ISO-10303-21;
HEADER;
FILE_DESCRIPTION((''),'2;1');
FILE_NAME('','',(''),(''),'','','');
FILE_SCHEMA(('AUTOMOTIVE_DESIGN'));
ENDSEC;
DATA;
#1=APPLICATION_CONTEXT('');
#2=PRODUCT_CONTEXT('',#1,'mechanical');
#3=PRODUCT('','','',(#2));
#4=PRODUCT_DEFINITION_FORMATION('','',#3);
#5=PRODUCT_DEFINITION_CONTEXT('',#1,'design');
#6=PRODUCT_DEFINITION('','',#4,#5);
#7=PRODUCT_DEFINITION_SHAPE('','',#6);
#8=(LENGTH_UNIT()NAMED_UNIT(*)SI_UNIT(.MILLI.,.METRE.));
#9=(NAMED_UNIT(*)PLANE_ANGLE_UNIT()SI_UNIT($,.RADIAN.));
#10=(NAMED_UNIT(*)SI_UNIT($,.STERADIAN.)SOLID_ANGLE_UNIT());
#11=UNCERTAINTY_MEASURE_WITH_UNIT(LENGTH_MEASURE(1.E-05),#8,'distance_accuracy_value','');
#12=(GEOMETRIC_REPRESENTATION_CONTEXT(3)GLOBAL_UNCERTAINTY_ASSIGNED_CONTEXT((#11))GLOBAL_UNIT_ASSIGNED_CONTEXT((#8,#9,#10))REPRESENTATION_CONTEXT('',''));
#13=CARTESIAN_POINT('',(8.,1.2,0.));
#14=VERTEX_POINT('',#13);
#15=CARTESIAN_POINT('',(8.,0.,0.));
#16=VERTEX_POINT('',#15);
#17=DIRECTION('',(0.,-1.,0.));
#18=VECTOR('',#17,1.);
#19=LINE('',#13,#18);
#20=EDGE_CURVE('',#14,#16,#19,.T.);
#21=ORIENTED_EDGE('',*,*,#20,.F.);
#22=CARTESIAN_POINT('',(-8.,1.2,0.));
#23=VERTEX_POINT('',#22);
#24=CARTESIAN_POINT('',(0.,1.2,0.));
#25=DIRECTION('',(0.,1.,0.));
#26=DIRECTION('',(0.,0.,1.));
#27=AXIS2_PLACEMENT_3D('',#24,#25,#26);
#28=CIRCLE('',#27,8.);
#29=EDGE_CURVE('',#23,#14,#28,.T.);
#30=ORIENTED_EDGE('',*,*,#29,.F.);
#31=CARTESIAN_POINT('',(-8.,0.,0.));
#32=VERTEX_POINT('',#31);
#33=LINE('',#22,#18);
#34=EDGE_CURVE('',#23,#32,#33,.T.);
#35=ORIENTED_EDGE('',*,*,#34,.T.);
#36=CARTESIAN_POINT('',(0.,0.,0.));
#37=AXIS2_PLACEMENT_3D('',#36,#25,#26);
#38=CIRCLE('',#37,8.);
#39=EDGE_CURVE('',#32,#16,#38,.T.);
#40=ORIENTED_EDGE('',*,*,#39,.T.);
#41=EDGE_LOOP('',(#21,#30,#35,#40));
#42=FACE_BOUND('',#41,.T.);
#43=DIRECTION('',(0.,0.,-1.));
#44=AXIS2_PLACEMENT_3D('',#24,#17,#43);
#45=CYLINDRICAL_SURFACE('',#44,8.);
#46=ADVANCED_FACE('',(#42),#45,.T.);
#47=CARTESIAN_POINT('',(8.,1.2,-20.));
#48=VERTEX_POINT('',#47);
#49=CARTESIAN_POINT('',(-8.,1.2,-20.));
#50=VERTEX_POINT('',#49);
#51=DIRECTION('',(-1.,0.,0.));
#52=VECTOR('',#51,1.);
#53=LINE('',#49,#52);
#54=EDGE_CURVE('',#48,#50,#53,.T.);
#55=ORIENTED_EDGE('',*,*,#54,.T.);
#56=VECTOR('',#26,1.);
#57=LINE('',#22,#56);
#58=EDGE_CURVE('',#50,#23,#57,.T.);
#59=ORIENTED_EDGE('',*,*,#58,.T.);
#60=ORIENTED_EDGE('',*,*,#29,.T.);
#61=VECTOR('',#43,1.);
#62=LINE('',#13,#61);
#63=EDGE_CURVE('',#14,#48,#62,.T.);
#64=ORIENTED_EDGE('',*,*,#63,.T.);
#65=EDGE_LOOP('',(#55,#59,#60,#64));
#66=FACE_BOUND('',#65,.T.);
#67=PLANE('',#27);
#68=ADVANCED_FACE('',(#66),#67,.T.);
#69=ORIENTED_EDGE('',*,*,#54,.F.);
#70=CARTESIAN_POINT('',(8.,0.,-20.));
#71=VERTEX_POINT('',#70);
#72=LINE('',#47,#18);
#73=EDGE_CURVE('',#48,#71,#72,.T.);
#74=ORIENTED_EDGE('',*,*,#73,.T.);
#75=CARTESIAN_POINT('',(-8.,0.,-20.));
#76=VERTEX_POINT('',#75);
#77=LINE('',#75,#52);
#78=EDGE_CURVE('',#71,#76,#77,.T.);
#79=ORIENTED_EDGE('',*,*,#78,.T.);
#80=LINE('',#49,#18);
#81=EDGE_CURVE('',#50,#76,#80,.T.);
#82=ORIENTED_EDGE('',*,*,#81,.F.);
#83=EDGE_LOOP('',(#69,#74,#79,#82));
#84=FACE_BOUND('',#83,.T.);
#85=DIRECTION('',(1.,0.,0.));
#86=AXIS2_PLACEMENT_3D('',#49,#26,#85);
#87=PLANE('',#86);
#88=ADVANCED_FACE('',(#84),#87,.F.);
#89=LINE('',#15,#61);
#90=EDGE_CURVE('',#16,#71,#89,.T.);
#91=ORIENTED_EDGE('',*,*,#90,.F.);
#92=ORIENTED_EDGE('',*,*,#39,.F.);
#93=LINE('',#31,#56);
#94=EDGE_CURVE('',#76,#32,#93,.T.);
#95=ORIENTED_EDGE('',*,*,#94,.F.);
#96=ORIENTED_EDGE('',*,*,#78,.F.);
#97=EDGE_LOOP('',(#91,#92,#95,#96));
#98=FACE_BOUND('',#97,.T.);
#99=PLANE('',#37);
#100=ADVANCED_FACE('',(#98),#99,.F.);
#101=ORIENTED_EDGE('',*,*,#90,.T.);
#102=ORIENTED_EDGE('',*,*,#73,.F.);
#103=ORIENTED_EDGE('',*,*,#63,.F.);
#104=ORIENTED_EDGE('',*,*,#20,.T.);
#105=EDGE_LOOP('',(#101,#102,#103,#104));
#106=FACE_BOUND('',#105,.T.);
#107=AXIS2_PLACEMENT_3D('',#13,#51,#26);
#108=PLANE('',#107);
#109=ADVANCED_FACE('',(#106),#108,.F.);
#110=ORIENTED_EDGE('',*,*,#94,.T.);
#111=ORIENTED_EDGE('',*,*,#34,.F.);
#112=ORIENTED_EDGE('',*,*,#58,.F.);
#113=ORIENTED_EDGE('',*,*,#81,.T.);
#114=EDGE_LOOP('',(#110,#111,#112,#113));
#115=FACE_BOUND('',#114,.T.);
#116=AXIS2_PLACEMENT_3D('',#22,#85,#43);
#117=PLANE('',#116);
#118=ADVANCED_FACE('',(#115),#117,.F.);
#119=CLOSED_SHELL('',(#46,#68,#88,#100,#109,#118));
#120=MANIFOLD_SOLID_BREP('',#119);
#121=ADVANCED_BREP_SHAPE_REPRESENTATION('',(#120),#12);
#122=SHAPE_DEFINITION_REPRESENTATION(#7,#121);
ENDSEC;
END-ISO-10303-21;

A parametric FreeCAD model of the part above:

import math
import FreeCAD as App
import Part
import Sketcher
from FreeCAD import Vector
Q = App.Units.Quantity

doc = App.newDocument("Part")
body = doc.addObject("PartDesign::Body", "Body")

# Sketch on XZ plane
sketch1 = body.newObject("Sketcher::SketchObject", "Sketch")
sketch1.AttachmentSupport = (doc.getObject("XZ_Plane"), [""])
sketch1.MapMode = "FlatFace"
sketch1.addGeometry(Part.LineSegment(Vector(8, 0, 0), Vector(8, -20, 0)), False)
sketch1.addGeometry(Part.LineSegment(Vector(8, -20, 0), Vector(-8, -20, 0)), False)
sketch1.addGeometry(Part.LineSegment(Vector(-8, -20, 0), Vector(-8, 0, 0)), False)
sketch1.addGeometry(Part.ArcOfCircle(Part.Circle(Vector(0, 0, 0), Vector(0, 0, 1), 8), math.radians(0), math.radians(180)), False)
sketch1.addConstraint(Sketcher.Constraint("Coincident", 0, 2, 1, 1))
sketch1.addConstraint(Sketcher.Constraint("Coincident", 1, 2, 2, 1))
sketch1.addConstraint(Sketcher.Constraint("Tangent", 2, 2, 3, 2))
sketch1.addConstraint(Sketcher.Constraint("Tangent", 3, 1, 0, 1))
sketch1.addConstraint(Sketcher.Constraint("Vertical", 0))
sketch1.addConstraint(Sketcher.Constraint("Horizontal", 1))
sketch1.addConstraint(Sketcher.Constraint("Vertical", 2))
sketch1.addConstraint(Sketcher.Constraint("Coincident", 3, 3, -1, 1))
sketch1.addConstraint(Sketcher.Constraint("Radius", 3, Q("8 mm")))
sketch1.addConstraint(Sketcher.Constraint("DistanceY", 0, 2, 0, 1, Q("20 mm")))
pad1 = body.newObject("PartDesign::Pad", "Pad")
pad1.Profile = sketch1
pad1.Length = 1.2
pad1.Reversed = True

doc.recompute()
